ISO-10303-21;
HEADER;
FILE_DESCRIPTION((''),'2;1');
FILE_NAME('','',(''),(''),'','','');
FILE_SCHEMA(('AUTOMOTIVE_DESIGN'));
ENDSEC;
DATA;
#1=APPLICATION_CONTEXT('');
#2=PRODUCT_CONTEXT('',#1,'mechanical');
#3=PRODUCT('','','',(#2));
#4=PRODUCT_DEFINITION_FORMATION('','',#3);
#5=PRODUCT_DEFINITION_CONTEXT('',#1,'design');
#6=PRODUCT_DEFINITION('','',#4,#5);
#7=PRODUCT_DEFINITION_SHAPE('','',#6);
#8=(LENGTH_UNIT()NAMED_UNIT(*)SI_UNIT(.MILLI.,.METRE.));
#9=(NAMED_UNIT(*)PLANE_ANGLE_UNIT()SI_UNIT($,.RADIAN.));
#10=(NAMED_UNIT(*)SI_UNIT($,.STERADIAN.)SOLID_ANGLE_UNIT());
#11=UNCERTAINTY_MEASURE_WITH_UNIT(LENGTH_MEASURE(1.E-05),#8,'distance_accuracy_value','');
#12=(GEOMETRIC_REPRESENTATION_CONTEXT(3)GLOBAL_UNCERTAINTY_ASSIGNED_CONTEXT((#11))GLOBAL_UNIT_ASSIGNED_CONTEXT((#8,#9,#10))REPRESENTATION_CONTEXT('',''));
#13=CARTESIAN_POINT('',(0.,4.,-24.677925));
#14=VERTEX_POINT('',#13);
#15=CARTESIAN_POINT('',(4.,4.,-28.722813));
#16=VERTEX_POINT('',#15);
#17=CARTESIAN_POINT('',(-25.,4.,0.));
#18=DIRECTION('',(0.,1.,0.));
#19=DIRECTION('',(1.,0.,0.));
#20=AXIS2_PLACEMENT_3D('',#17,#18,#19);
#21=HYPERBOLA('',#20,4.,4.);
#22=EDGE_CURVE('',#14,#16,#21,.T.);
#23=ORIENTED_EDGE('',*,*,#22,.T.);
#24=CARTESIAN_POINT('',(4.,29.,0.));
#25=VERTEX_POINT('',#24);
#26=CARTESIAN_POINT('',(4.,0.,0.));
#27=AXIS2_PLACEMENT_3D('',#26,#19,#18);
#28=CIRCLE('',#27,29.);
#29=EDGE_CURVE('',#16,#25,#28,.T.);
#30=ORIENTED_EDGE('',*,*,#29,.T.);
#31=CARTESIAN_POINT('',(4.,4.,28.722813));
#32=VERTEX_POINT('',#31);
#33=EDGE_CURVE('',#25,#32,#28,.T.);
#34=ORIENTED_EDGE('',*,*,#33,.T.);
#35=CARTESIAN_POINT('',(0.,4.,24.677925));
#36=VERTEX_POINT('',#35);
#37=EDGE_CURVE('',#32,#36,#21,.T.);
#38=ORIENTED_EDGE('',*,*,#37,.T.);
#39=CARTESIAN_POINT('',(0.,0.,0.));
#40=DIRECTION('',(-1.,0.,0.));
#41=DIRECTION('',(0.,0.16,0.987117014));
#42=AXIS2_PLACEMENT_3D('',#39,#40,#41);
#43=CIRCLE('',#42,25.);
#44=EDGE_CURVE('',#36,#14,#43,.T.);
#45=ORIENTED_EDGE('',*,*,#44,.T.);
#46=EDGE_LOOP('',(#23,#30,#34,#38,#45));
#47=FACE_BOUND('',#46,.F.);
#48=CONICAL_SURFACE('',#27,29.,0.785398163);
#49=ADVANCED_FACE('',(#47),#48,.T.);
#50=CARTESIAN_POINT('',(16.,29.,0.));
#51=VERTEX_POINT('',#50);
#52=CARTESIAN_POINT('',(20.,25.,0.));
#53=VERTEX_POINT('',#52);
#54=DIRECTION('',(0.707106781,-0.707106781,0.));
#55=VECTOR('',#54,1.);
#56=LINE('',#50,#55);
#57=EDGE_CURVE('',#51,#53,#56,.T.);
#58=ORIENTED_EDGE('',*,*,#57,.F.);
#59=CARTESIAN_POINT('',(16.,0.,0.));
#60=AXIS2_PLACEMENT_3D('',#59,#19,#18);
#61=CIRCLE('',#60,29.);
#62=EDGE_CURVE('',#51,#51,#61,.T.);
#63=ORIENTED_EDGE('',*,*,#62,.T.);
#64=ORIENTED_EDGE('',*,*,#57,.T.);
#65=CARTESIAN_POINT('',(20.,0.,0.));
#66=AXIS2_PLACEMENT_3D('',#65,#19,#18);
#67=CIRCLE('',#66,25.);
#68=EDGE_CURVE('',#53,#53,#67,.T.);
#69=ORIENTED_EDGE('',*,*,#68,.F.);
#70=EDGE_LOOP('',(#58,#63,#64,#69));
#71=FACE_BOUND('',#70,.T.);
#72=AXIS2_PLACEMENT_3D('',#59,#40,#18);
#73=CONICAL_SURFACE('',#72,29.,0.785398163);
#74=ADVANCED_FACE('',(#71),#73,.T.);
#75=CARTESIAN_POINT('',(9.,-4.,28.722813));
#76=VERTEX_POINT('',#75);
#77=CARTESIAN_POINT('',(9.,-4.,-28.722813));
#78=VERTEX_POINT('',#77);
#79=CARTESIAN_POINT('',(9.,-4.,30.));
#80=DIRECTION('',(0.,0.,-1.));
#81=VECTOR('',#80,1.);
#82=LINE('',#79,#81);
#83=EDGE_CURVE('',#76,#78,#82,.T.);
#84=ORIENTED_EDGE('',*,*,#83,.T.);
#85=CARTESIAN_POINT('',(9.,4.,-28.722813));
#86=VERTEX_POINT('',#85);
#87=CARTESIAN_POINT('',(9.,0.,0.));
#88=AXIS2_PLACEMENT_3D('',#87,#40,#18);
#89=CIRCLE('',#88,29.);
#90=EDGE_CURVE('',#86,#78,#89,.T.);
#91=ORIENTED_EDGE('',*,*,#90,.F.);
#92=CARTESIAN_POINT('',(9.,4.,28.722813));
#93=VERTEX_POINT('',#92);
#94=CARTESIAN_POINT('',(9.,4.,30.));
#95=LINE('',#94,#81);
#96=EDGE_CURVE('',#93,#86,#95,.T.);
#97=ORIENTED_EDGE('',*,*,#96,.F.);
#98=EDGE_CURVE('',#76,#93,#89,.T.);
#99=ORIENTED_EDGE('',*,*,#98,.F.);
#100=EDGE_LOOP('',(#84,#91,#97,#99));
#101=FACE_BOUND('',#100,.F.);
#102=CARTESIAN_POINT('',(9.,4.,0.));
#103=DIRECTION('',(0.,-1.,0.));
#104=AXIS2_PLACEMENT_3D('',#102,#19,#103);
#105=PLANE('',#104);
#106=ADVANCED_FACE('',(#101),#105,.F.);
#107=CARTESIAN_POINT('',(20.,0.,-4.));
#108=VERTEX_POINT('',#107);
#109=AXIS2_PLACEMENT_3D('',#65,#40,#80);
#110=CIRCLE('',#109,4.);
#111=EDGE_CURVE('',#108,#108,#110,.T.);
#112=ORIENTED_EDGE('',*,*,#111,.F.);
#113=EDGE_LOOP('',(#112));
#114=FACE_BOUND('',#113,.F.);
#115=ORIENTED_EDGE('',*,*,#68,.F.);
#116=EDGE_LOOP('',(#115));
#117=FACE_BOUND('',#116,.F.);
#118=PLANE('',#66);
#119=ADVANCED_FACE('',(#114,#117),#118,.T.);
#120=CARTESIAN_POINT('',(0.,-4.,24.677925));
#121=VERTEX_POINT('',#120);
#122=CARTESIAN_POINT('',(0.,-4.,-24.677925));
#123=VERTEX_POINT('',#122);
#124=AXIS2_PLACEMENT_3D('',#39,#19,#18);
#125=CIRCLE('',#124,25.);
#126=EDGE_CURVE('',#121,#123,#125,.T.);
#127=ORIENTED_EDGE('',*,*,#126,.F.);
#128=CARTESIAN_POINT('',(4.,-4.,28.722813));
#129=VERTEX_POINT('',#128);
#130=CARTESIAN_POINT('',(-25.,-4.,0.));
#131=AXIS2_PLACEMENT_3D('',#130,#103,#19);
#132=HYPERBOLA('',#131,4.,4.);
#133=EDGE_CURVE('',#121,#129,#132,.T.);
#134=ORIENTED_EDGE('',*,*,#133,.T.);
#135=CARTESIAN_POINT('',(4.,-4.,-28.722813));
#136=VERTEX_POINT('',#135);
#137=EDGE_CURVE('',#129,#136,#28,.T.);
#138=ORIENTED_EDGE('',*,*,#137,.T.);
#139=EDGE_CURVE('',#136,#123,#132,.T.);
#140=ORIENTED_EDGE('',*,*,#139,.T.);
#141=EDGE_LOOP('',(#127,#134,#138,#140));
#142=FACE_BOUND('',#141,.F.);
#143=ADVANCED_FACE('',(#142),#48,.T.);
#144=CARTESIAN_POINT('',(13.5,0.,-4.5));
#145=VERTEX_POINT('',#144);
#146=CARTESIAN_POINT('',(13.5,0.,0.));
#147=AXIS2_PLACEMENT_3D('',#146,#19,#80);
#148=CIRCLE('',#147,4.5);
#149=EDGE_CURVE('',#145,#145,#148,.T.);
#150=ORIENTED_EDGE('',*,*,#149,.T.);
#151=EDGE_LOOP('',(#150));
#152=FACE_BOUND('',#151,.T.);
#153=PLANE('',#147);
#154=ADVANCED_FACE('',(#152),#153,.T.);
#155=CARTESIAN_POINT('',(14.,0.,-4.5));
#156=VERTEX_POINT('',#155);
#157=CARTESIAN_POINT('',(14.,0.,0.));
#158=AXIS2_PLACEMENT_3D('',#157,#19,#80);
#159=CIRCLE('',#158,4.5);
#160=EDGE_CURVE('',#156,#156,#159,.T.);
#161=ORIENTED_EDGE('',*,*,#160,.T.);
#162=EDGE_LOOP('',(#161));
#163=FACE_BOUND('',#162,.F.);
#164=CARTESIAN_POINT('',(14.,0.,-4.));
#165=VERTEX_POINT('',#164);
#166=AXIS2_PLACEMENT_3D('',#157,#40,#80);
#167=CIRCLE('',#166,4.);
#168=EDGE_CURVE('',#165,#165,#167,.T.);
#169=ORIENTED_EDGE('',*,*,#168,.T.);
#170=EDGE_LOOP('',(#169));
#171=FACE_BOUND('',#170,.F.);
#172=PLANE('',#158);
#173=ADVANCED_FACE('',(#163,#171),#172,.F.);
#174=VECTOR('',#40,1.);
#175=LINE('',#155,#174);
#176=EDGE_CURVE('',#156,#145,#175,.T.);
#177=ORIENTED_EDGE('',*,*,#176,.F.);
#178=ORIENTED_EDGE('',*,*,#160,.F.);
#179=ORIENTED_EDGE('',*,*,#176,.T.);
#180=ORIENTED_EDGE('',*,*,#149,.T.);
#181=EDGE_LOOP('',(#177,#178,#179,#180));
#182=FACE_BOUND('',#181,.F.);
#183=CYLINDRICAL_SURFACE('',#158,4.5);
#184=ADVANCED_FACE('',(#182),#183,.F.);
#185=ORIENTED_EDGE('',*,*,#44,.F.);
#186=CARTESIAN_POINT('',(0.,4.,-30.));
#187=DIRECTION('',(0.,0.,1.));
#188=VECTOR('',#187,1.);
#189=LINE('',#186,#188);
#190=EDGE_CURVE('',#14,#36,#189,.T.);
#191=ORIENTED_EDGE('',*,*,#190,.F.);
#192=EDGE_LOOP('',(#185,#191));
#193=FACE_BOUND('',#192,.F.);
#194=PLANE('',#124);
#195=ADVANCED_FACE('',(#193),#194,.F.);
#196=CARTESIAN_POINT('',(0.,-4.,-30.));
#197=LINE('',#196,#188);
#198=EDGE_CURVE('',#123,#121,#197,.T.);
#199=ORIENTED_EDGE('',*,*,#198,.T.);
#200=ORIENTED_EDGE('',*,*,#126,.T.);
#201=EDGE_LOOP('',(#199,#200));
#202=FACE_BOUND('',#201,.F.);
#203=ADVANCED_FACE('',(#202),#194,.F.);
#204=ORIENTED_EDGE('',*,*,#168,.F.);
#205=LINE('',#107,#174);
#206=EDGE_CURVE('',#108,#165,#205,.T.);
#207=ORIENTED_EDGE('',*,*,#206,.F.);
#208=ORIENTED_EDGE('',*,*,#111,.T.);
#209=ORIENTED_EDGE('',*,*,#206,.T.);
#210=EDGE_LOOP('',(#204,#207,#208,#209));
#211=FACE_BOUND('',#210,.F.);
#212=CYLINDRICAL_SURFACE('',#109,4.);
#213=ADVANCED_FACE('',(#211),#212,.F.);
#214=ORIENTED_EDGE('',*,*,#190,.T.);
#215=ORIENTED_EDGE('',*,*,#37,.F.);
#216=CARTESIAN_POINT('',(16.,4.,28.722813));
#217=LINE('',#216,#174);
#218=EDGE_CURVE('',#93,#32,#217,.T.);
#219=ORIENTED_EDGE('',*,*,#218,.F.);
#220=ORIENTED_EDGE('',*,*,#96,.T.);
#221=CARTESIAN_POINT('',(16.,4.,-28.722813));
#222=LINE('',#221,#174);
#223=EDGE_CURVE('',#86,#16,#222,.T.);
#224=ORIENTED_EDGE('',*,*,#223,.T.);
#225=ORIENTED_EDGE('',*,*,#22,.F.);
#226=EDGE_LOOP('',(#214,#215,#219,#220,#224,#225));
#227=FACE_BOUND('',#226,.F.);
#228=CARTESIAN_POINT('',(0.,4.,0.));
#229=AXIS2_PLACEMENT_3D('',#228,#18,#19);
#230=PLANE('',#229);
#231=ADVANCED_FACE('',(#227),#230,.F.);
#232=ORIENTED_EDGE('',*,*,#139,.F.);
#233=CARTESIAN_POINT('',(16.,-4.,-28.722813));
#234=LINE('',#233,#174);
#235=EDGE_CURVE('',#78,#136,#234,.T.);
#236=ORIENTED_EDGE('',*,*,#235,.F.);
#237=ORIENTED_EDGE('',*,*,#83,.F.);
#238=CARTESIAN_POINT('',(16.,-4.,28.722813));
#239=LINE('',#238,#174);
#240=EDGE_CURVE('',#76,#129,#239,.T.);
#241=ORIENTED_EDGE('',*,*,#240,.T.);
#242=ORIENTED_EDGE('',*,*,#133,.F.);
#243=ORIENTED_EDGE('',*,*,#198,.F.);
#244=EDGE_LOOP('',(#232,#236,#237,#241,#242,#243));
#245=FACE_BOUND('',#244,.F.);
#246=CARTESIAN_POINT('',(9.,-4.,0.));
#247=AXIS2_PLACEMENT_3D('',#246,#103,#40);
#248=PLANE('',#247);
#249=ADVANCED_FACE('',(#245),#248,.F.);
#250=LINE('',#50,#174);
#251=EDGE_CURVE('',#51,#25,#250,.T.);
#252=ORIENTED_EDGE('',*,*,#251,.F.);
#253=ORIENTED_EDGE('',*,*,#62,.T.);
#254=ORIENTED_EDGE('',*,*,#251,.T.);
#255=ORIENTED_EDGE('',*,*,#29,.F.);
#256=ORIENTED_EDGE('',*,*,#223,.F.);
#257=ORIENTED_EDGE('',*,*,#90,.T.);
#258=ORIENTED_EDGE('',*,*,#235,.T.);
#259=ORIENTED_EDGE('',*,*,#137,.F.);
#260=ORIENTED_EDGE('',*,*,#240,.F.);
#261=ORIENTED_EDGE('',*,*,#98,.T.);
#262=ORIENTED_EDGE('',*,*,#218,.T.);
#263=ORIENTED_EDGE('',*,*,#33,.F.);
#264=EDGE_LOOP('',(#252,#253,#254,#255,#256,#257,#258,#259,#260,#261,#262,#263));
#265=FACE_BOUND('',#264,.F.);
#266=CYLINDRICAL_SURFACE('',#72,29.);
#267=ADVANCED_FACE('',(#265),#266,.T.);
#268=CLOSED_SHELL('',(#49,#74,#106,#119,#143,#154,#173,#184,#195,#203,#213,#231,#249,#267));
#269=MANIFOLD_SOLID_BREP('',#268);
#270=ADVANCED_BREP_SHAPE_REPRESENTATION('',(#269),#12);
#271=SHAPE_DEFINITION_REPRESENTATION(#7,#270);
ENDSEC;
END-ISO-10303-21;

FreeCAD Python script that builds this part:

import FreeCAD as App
import Part
import Sketcher

doc = App.newDocument("Part")
body = doc.addObject("PartDesign::Body", "Body")

sketch1 = body.newObject("Sketcher::SketchObject", "Sketch")
sketch1.AttachmentSupport = (doc.getObject("XY_Plane"), [""])
sketch1.MapMode = "FlatFace"
sketch1.addGeometry([
    Part.LineSegment(App.Vector(0, 25, 0), App.Vector(0, 0, 0)),
    Part.LineSegment(App.Vector(0, 0, 0), App.Vector(20, 0, 0)),
    Part.LineSegment(App.Vector(20, 0, 0), App.Vector(20, 25, 0)),
    Part.LineSegment(App.Vector(20, 25, 0), App.Vector(16, 29, 0)),
    Part.LineSegment(App.Vector(16, 29, 0), App.Vector(4, 29, 0)),
    Part.LineSegment(App.Vector(4, 29, 0), App.Vector(0, 25, 0)),
], False)
sketch1.addConstraint([
    Sketcher.Constraint("Coincident", 0, 2, 1, 1),
    Sketcher.Constraint("Coincident", 1, 2, 2, 1),
    Sketcher.Constraint("Coincident", 2, 2, 3, 1),
    Sketcher.Constraint("Coincident", 3, 2, 4, 1),
    Sketcher.Constraint("Coincident", 4, 2, 5, 1),
    Sketcher.Constraint("Coincident", 5, 2, 0, 1),
    Sketcher.Constraint("Vertical", 0),
    Sketcher.Constraint("Horizontal", 1),
    Sketcher.Constraint("Vertical", 2),
    Sketcher.Constraint("Horizontal", 4),
    Sketcher.Constraint("Coincident", 0, 2, -1, 1),
    Sketcher.Constraint("Perpendicular", 3, 5),
    Sketcher.Constraint("Horizontal", 2, 2, 5, 2),
    Sketcher.Constraint("Equal", 3, 5),
    Sketcher.Constraint("DistanceX", 1, 1, 1, 2, 20.0),
    Sketcher.Constraint("DistanceY", -1, 1, 3, 2, 29.0),
    Sketcher.Constraint("DistanceX", -1, 1, 4, 2, 4.0),
])
revolution = body.newObject("PartDesign::Revolution", "Revolution")
revolution.Profile = sketch1
revolution.ReferenceAxis = (sketch1, ["H_Axis"])
revolution.Angle = 360

sketch2 = body.newObject("Sketcher::SketchObject", "Sketch001")
sketch2.AttachmentSupport = (doc.getObject("XY_Plane"), [""])
sketch2.MapMode = "FlatFace"
sketch2.addGeometry([
    Part.LineSegment(App.Vector(9, 4, 0), App.Vector(0, 4, 0)),
    Part.LineSegment(App.Vector(0, 4, 0), App.Vector(0, -4, 0)),
    Part.LineSegment(App.Vector(0, -4, 0), App.Vector(9, -4, 0)),
    Part.LineSegment(App.Vector(9, -4, 0), App.Vector(9, 4, 0)),
], False)
sketch2.addConstraint([
    Sketcher.Constraint("Coincident", 0, 2, 1, 1),
    Sketcher.Constraint("Coincident", 1, 2, 2, 1),
    Sketcher.Constraint("Coincident", 2, 2, 3, 1),
    Sketcher.Constraint("Coincident", 3, 2, 0, 1),
    Sketcher.Constraint("Horizontal", 0),
    Sketcher.Constraint("Vertical", 1),
    Sketcher.Constraint("Horizontal", 2),
    Sketcher.Constraint("Vertical", 3),
    Sketcher.Constraint("Symmetric", 0, 2, 1, 2, -1, 1),
    Sketcher.Constraint("DistanceX", 0, 2, 0, 1, 9.0),
    Sketcher.Constraint("DistanceY", 1, 2, 1, 1, 8.0),
])
pocket1 = body.newObject("PartDesign::Pocket", "Pocket")
pocket1.Profile = sketch2
pocket1.Type = "ThroughAll"
pocket1.Midplane = True

sketch3 = body.newObject("Sketcher::SketchObject", "Sketch002")
sketch3.AttachmentSupport = (doc.getObject("YZ_Plane"), [""])
sketch3.MapMode = "FlatFace"
sketch3.AttachmentOffset = App.Placement(App.Vector(0, 0, 20), App.Rotation())
sketch3.addGeometry(Part.Circle(App.Vector(0, 0, 0), App.Vector(0, 0, 1), 4), False)
sketch3.addConstraint([
    Sketcher.Constraint("Coincident", 0, 3, -1, 1),
    Sketcher.Constraint("Diameter", 0, 8.0),
])
doc.recompute()
hole = body.newObject("PartDesign::Hole", "Hole")
hole.Profile = sketch3
hole.ThreadType = "None"
hole.Diameter = 8
hole.DepthType = "Dimension"
hole.Depth = 6
hole.DrillPoint = "Flat"

sketch4 = body.newObject("Sketcher::SketchObject", "Sketch003")
sketch4.AttachmentSupport = (doc.getObject("YZ_Plane"), [""])
sketch4.MapMode = "FlatFace"
sketch4.AttachmentOffset = App.Placement(App.Vector(0, 0, 14), App.Rotation())
sketch4.addGeometry(Part.Circle(App.Vector(0, 0, 0), App.Vector(0, 0, 1), 4.5), False)
sketch4.addConstraint([
    Sketcher.Constraint("Coincident", 0, 3, -1, 1),
    Sketcher.Constraint("Diameter", 0, 9.0),
])
pocket2 = body.newObject("PartDesign::Pocket", "Pocket001")
pocket2.Profile = sketch4
pocket2.Length = 0.5

doc.recompute()
